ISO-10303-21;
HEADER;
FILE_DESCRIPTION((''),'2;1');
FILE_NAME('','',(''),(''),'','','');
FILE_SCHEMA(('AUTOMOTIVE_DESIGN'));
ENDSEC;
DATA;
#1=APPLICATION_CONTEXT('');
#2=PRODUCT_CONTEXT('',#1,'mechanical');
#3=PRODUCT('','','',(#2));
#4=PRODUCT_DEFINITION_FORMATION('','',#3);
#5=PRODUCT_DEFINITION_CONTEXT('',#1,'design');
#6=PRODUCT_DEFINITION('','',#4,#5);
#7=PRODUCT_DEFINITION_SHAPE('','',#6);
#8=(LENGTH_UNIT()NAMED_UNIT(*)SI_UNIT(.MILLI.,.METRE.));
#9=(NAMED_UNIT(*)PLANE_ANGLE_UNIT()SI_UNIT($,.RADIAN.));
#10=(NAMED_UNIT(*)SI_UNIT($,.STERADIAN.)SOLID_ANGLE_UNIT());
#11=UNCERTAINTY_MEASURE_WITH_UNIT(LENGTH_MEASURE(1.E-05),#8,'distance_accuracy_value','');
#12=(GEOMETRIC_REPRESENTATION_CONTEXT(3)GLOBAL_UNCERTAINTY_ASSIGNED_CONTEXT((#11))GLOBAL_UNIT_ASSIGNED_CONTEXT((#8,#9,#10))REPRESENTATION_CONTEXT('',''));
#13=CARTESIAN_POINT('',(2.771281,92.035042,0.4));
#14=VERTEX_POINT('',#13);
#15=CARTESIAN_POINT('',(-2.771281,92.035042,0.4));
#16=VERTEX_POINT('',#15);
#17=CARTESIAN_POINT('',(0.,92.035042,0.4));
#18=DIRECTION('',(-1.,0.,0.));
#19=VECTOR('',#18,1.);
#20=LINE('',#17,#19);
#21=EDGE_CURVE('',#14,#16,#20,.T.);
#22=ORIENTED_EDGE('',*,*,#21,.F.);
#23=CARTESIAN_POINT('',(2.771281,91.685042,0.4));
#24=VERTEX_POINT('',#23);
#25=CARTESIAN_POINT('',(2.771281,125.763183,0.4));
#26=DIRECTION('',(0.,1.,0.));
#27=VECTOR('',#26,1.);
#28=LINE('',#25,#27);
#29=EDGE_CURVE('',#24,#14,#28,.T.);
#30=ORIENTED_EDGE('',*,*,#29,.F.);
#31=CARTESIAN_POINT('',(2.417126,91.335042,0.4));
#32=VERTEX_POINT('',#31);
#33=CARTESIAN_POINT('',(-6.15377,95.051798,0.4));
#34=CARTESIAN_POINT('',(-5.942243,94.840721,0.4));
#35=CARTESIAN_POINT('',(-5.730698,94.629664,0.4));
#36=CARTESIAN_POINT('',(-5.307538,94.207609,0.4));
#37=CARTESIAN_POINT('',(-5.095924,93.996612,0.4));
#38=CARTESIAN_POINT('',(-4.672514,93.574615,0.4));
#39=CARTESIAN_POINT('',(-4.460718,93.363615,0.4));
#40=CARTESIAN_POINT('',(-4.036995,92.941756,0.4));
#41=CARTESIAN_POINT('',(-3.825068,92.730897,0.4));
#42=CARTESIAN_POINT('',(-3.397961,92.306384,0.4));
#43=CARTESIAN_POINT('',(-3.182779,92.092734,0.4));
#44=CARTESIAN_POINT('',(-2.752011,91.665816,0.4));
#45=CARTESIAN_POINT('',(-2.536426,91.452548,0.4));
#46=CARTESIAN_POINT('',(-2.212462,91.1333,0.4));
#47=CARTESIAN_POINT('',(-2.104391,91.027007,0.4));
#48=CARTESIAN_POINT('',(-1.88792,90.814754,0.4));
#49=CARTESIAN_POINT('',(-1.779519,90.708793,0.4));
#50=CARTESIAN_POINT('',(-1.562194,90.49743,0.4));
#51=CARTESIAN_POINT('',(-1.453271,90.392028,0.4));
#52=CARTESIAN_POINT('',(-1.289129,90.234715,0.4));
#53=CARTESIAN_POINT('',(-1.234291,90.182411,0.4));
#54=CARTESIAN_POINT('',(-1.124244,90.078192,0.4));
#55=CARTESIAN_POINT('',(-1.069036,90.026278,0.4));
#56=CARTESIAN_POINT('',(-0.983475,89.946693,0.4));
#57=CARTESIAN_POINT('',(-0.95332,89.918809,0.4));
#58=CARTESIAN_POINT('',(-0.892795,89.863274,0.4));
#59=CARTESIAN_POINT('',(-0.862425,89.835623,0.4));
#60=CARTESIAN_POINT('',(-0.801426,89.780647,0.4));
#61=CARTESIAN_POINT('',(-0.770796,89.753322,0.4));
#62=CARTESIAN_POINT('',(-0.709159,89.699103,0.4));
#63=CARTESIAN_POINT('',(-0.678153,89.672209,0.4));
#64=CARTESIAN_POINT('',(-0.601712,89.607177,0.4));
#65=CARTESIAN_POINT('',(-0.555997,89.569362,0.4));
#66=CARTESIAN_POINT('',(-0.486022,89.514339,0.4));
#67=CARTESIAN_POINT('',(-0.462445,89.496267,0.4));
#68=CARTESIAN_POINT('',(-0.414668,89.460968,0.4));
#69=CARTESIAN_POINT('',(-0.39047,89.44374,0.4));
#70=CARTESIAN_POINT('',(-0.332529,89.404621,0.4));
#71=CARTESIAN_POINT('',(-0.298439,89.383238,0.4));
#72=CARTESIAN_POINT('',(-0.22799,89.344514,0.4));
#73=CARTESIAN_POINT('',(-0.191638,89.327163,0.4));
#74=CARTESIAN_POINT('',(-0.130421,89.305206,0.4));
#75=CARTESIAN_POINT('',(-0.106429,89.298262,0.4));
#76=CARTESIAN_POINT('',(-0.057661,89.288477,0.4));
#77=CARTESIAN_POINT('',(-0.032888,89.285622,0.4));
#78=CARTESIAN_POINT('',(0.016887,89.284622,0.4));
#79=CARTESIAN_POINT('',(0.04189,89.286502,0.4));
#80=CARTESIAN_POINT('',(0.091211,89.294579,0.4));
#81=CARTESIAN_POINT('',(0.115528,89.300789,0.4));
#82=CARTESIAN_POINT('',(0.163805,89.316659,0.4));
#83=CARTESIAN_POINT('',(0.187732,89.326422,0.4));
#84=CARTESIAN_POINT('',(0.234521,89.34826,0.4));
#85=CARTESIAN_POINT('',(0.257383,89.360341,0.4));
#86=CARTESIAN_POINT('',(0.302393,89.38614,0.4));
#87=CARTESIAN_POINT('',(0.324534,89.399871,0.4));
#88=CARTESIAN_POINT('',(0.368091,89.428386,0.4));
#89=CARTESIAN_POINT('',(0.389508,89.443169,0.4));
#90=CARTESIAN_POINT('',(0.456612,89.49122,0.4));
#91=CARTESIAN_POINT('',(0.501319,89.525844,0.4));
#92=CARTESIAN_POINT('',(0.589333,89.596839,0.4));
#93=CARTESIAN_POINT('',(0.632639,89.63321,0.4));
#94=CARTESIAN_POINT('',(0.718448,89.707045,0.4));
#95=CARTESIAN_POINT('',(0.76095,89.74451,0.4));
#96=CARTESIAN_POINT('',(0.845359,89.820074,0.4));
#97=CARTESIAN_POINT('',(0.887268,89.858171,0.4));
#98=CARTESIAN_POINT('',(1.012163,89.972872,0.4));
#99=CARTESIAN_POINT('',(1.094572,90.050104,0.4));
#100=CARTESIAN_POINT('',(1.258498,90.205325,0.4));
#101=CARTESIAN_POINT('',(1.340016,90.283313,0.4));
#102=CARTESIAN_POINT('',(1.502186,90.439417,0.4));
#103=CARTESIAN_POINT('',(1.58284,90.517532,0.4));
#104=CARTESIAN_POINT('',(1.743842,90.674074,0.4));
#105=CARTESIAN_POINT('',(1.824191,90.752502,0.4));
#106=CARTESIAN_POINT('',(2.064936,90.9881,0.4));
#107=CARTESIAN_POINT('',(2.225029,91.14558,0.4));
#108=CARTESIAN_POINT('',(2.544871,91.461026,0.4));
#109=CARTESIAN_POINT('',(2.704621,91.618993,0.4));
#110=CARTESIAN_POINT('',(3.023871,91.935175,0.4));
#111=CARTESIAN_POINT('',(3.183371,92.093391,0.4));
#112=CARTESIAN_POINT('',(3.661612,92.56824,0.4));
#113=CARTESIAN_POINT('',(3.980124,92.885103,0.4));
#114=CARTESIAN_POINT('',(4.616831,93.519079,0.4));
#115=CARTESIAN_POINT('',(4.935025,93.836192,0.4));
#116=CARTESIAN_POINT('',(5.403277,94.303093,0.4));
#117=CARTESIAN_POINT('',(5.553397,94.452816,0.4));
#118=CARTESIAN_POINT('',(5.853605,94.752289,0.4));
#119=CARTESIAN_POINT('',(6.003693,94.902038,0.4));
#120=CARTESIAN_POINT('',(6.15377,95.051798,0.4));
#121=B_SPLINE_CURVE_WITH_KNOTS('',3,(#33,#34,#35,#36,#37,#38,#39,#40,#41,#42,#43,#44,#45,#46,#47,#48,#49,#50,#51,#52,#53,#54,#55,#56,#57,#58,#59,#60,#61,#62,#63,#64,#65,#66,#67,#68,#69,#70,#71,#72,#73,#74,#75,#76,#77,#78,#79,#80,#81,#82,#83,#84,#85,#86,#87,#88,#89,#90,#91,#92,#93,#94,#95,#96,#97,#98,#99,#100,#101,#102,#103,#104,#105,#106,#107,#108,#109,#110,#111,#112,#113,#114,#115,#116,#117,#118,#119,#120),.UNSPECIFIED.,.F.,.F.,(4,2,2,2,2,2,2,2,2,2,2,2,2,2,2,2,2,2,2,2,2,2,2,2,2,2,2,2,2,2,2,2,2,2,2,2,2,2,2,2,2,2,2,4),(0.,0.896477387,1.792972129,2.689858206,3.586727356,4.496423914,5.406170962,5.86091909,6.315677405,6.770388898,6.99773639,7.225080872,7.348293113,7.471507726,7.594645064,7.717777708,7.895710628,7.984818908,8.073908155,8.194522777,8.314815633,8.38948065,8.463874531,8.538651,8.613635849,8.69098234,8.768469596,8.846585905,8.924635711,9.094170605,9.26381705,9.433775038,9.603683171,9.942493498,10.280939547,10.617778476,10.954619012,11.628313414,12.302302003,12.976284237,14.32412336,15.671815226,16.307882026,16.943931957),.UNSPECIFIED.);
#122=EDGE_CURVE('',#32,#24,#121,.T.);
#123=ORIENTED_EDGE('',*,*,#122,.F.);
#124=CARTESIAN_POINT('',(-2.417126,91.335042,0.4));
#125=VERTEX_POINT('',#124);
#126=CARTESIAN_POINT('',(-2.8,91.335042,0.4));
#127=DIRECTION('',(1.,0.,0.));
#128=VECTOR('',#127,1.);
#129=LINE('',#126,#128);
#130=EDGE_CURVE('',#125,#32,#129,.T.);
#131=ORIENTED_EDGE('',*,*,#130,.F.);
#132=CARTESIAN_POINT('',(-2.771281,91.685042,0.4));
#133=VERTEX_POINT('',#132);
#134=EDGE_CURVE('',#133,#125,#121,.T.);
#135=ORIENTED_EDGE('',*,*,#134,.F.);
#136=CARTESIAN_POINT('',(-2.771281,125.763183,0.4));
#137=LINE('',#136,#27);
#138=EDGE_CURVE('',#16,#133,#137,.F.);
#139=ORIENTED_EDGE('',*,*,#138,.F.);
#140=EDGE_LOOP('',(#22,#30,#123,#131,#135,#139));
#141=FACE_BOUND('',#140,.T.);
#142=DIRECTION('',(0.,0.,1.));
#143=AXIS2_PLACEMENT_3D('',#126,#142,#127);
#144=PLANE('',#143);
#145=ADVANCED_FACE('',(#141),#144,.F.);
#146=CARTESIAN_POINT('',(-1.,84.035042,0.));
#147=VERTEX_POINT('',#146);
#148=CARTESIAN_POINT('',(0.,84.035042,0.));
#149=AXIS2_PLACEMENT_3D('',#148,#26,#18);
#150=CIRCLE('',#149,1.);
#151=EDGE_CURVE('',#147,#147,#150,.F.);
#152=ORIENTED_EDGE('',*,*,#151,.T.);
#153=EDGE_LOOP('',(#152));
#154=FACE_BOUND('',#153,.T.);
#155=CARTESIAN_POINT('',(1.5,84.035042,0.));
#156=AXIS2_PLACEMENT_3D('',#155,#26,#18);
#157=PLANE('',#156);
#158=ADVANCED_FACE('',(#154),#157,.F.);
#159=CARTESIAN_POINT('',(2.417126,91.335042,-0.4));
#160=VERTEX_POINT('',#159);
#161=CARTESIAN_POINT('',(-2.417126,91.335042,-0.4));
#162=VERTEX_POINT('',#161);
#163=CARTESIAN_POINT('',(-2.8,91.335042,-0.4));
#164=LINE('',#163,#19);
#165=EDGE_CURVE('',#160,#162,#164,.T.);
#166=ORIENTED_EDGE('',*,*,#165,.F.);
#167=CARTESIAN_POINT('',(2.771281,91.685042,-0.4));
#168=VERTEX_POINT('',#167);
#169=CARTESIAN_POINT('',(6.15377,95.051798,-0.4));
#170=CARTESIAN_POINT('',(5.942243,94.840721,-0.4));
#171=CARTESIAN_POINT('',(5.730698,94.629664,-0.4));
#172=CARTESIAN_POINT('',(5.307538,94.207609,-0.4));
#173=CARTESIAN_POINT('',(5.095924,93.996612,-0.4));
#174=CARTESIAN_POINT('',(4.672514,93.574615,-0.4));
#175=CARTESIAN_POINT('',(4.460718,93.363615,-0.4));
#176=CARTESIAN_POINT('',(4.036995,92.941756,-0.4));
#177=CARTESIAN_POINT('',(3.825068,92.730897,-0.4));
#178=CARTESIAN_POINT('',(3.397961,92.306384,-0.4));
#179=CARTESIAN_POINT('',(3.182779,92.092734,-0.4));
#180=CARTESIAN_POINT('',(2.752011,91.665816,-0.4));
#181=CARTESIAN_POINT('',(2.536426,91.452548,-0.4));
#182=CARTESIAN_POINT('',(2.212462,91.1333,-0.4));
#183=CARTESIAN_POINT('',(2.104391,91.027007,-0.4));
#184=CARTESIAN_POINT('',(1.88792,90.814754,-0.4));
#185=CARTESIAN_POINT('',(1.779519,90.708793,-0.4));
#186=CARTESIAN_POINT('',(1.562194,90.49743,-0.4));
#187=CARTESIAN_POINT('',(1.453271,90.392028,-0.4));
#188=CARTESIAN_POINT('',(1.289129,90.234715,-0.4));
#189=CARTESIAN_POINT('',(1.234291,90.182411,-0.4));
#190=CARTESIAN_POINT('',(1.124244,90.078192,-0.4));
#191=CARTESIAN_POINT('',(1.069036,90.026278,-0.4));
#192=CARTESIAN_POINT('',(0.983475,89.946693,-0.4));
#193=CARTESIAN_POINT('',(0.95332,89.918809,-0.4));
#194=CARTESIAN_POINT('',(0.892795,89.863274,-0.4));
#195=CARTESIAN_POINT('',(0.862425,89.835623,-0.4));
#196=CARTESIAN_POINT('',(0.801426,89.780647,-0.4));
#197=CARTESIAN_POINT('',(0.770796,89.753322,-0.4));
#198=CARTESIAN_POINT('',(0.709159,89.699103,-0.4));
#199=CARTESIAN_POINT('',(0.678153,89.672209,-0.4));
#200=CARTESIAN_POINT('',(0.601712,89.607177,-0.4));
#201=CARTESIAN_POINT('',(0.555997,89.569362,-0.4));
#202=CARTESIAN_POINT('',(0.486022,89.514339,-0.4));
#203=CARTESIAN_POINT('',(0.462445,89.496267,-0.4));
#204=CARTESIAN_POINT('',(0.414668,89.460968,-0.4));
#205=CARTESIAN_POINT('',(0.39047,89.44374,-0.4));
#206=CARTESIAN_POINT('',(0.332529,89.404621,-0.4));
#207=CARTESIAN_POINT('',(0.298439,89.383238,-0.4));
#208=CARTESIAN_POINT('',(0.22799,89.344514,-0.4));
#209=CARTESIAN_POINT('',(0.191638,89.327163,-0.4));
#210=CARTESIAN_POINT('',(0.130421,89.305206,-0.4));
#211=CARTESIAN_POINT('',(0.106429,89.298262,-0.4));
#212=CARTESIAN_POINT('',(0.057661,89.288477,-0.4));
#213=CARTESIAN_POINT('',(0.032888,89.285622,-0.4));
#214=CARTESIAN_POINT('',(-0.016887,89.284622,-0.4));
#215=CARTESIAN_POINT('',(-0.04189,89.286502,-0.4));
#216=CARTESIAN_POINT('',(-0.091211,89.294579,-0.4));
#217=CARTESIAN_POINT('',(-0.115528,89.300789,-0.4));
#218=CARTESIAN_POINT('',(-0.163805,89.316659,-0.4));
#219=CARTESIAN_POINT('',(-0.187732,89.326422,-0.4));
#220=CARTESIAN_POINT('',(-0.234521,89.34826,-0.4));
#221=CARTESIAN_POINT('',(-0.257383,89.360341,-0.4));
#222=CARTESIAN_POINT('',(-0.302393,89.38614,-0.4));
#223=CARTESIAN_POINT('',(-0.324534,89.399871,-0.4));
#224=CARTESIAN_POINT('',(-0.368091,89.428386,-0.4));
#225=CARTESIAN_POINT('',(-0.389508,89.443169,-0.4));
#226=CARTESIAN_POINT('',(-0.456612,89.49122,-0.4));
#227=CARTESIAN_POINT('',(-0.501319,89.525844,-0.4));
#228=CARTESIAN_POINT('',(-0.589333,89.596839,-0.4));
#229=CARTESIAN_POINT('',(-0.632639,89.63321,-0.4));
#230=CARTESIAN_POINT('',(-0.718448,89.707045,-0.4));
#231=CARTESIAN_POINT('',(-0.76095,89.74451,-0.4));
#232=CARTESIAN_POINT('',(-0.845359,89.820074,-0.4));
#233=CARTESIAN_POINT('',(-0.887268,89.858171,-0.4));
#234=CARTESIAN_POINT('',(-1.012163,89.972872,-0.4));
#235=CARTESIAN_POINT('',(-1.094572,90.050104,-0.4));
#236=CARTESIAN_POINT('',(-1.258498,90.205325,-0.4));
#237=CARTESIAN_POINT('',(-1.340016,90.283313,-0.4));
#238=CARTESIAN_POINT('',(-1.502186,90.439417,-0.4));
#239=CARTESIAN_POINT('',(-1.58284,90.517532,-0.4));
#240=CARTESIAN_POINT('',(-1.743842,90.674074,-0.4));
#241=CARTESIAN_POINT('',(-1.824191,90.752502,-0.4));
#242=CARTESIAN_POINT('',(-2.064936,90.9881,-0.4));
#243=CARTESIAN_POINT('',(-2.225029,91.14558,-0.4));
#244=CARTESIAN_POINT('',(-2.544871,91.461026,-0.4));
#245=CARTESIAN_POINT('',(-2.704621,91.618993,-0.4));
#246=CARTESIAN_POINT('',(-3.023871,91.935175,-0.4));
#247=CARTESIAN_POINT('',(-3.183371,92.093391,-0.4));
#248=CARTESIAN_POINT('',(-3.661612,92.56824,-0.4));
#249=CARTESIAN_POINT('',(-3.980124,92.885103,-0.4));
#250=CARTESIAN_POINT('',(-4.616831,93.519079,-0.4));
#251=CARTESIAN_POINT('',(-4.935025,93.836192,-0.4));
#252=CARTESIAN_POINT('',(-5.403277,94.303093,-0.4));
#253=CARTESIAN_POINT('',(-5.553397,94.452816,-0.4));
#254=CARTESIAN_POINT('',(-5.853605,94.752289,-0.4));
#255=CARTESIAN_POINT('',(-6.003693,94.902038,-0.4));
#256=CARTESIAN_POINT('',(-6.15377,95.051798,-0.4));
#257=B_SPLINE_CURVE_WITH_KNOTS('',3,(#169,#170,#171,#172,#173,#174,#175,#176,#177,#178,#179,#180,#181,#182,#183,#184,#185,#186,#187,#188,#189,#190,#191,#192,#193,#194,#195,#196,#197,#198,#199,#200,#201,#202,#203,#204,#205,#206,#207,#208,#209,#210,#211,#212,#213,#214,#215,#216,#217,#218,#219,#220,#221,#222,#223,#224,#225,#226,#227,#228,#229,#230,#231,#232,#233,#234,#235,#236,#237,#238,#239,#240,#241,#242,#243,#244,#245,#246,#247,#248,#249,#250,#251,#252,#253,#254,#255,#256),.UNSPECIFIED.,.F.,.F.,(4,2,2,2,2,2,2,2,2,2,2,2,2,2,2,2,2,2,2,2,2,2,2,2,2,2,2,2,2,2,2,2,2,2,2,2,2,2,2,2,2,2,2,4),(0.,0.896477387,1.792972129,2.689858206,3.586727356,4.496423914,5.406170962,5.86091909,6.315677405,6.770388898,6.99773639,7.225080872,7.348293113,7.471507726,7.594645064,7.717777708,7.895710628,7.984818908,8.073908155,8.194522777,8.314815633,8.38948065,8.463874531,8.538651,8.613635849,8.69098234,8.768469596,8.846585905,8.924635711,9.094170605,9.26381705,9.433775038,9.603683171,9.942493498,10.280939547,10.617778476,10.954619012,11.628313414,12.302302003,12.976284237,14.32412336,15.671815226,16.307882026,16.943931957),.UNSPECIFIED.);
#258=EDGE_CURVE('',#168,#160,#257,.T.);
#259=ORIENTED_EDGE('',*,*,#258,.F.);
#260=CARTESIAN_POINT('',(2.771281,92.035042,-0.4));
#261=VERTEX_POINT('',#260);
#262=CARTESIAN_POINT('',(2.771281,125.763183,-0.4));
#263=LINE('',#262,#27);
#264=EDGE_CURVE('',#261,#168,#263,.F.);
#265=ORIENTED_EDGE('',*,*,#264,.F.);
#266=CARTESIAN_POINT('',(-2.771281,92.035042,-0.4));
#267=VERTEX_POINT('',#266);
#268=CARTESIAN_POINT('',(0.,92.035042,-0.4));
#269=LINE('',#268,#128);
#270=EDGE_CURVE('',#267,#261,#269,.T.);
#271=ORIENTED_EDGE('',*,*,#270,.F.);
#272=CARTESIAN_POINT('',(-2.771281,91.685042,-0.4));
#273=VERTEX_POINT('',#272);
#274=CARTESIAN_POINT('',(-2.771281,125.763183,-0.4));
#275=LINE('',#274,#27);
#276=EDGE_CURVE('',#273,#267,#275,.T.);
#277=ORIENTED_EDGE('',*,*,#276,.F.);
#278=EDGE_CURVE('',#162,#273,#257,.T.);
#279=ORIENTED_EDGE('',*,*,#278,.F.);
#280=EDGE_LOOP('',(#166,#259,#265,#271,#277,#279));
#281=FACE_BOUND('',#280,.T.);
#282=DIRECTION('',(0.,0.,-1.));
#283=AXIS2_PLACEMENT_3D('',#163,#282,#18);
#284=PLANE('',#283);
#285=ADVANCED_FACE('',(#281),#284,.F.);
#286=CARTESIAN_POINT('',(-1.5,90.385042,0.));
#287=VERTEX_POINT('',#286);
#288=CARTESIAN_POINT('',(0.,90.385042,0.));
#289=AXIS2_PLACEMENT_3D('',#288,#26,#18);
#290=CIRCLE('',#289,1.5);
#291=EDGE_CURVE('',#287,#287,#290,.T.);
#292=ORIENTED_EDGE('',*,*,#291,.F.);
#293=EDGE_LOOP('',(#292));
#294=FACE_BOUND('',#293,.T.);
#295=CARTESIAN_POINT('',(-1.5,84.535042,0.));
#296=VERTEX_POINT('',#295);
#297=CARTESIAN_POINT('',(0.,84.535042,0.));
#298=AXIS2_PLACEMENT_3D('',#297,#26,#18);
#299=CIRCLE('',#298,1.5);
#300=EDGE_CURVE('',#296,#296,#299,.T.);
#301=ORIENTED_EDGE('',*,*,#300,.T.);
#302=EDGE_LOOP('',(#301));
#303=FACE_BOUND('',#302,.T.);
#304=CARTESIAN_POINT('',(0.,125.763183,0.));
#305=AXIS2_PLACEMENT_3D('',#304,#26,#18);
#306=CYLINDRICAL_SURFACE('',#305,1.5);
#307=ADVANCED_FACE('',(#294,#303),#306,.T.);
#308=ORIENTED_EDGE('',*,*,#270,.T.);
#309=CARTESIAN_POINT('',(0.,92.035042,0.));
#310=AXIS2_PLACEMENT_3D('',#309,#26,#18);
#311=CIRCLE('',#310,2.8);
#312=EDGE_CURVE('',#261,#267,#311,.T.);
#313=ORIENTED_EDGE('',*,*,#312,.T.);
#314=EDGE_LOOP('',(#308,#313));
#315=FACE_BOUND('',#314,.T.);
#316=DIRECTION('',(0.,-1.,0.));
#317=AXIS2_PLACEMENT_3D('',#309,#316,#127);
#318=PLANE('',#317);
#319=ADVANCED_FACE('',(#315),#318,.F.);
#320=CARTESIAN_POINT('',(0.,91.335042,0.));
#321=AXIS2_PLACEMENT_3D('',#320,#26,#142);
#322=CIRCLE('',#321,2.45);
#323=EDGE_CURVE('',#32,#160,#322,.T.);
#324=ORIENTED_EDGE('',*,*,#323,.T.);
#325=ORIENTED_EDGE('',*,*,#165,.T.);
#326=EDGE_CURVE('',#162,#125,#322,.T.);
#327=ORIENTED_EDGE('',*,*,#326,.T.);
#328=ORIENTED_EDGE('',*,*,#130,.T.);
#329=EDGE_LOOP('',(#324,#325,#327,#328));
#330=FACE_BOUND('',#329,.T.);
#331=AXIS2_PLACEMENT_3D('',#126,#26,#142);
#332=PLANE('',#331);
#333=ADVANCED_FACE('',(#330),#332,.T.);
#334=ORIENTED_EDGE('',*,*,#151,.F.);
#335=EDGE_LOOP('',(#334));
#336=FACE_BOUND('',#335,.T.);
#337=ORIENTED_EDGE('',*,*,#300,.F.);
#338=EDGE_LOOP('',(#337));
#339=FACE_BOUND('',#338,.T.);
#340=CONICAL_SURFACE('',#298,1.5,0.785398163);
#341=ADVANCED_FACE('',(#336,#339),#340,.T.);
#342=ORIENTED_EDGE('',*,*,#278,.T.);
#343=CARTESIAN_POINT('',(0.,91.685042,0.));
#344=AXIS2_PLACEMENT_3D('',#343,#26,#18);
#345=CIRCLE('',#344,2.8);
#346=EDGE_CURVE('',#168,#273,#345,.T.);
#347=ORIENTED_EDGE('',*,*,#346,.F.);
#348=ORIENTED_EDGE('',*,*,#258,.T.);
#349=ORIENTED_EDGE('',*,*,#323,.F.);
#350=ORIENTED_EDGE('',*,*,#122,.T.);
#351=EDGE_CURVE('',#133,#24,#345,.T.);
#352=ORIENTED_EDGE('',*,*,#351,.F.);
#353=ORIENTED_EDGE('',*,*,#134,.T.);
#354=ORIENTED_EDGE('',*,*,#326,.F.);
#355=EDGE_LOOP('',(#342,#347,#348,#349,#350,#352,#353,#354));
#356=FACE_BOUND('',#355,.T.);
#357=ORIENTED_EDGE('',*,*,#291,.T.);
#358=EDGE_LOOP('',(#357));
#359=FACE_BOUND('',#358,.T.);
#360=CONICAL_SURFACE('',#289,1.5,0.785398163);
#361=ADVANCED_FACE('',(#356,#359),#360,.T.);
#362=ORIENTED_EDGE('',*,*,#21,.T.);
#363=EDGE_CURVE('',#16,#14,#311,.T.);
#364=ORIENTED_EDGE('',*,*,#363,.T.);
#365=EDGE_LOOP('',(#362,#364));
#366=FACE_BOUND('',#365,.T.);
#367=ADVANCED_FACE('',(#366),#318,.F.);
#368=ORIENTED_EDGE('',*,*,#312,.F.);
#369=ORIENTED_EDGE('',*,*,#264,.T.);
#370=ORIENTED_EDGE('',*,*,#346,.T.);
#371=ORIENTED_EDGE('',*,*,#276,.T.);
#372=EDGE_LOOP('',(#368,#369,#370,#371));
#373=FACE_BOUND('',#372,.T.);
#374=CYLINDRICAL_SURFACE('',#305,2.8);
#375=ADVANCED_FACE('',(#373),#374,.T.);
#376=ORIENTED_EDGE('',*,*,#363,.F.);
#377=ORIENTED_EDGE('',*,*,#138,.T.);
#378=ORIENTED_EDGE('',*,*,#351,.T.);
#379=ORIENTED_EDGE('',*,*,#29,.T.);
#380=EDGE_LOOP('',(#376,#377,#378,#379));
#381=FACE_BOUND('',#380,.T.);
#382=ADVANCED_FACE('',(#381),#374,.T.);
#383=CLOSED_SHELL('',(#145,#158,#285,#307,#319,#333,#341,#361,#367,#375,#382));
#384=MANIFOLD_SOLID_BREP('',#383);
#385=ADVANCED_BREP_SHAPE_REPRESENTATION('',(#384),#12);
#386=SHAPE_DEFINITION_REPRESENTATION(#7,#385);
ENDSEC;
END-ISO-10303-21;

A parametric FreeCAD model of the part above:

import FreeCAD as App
import Part
import Sketcher

V = App.Vector
Q = App.Units.Quantity


def edges_at(feature, points):
    """Names of the edges that pass closest to the given points."""
    edges = feature.Shape.Edges
    near = lambda p: min(range(len(edges)), key=lambda i: edges[i].distToShape(Part.Vertex(*p))[0])
    return sorted({f"Edge{near(p) + 1}" for p in points})


def add_polygon(sketch, points):
    """Adds a closed chain of lines whose ends are joined by coincident constraints."""
    first, n = sketch.GeometryCount, len(points)
    for a, b in zip(points, points[1:] + points[:1]):
        sketch.addGeometry(Part.LineSegment(App.Vector(*a, 0), App.Vector(*b, 0)), False)
    for i in range(n):
        sketch.addConstraint(Sketcher.Constraint("Coincident", first + i, 2, first + (i + 1) % n, 1))

doc = App.newDocument("Part")
params = doc.addObject("Spreadsheet::Sheet", "Params")
for row, (alias, value) in enumerate([
    ("sketch1_height", "8 mm"),
    ("sketch1_width", "1.5 mm"),
    ("sketch1_width2", "2.8 mm"),
    ("sketch1_height2", "6.35 mm"),
    ("revolution_angle", "360 deg"),
    ("sketch2_width", "5.6 mm"),
    ("sketch2_height", "0.8 mm"),
    ("pocket1_length", "0.7 mm"),
    ("chamfer_size", "0.5 mm"),
], start=1):
    params.set(f"A{row}", alias)
    params.set(f"B{row}", "=" + value)
    params.setAlias(f"B{row}", alias)

body = doc.addObject("PartDesign::Body", "Body")

sketch1 = body.newObject("Sketcher::SketchObject", "Sketch")
sketch1.AttachmentSupport = (doc.getObject("XY_Plane"), [""])
sketch1.MapMode = "FlatFace"
add_polygon(sketch1, [(0, 92.035042), (0, 84.035042), (1.5, 84.035042), (1.5, 90.385042), (2.8, 91.685042), (2.8, 92.035042)])
sketch1.addConstraint([
    Sketcher.Constraint("Vertical", 0),
    Sketcher.Constraint("Horizontal", 1),
    Sketcher.Constraint("Vertical", 2),
    Sketcher.Constraint("Vertical", 4),
    Sketcher.Constraint("Horizontal", 5),
    Sketcher.Constraint("PointOnObject", 0, 2, -2),
    Sketcher.Constraint("DistanceY", 0, 2, 0, 1, 8.0),
    Sketcher.Constraint("Angle", 3, Q("45 deg")),
    Sketcher.Constraint("DistanceX", 1, 1, 1, 2, 1.5),
    Sketcher.Constraint("DistanceX", 5, 2, 5, 1, 2.8),
    Sketcher.Constraint("DistanceY", 2, 1, 2, 2, 6.35),
    Sketcher.Constraint("DistanceY", -1, 1, 0, 2, 84.035042),
])
sketch1.setExpression("Constraints[12]", "Params.sketch1_height")
sketch1.setExpression("Constraints[14]", "Params.sketch1_width")
sketch1.setExpression("Constraints[15]", "Params.sketch1_width2")
sketch1.setExpression("Constraints[16]", "Params.sketch1_height2")
revolution = body.newObject("PartDesign::Revolution", "Revolution")
revolution.Profile = sketch1
revolution.ReferenceAxis = (sketch1, ["V_Axis"])
revolution.setExpression("Angle", "Params.revolution_angle")

sketch2 = body.newObject("Sketcher::SketchObject", "Sketch001")
sketch2.AttachmentSupport = (doc.getObject("XZ_Plane"), [""])
sketch2.MapMode = "FlatFace"
sketch2.AttachmentOffset = App.Placement(V(0, 0, -92.035042), App.Rotation())
add_polygon(sketch2, [(2.8, 0.4), (2.8, -0.4), (-2.8, -0.4), (-2.8, 0.4)])
sketch2.addConstraint([
    Sketcher.Constraint("Vertical", 0),
    Sketcher.Constraint("Horizontal", 1),
    Sketcher.Constraint("Vertical", 2),
    Sketcher.Constraint("Horizontal", 3),
    Sketcher.Constraint("Symmetric", 0, 2, 2, 2, -1, 1),
    Sketcher.Constraint("DistanceX", 1, 2, 1, 1, 5.6),
    Sketcher.Constraint("DistanceY", 0, 2, 0, 1, 0.8),
])
sketch2.setExpression("Constraints[9]", "Params.sketch2_width")
sketch2.setExpression("Constraints[10]", "Params.sketch2_height")
pocket1 = body.newObject("PartDesign::Pocket", "Pocket")
pocket1.Profile = sketch2
pocket1.setExpression("Length", "Params.pocket1_length")
pocket1.Reversed = True
doc.recompute()

chamfer = body.newObject("PartDesign::Chamfer", "Chamfer")
chamfer.Base = (pocket1, edges_at(pocket1, [(1.5, 84.035, 0)]))
chamfer.setExpression("Size", "Params.chamfer_size")

doc.recompute()
